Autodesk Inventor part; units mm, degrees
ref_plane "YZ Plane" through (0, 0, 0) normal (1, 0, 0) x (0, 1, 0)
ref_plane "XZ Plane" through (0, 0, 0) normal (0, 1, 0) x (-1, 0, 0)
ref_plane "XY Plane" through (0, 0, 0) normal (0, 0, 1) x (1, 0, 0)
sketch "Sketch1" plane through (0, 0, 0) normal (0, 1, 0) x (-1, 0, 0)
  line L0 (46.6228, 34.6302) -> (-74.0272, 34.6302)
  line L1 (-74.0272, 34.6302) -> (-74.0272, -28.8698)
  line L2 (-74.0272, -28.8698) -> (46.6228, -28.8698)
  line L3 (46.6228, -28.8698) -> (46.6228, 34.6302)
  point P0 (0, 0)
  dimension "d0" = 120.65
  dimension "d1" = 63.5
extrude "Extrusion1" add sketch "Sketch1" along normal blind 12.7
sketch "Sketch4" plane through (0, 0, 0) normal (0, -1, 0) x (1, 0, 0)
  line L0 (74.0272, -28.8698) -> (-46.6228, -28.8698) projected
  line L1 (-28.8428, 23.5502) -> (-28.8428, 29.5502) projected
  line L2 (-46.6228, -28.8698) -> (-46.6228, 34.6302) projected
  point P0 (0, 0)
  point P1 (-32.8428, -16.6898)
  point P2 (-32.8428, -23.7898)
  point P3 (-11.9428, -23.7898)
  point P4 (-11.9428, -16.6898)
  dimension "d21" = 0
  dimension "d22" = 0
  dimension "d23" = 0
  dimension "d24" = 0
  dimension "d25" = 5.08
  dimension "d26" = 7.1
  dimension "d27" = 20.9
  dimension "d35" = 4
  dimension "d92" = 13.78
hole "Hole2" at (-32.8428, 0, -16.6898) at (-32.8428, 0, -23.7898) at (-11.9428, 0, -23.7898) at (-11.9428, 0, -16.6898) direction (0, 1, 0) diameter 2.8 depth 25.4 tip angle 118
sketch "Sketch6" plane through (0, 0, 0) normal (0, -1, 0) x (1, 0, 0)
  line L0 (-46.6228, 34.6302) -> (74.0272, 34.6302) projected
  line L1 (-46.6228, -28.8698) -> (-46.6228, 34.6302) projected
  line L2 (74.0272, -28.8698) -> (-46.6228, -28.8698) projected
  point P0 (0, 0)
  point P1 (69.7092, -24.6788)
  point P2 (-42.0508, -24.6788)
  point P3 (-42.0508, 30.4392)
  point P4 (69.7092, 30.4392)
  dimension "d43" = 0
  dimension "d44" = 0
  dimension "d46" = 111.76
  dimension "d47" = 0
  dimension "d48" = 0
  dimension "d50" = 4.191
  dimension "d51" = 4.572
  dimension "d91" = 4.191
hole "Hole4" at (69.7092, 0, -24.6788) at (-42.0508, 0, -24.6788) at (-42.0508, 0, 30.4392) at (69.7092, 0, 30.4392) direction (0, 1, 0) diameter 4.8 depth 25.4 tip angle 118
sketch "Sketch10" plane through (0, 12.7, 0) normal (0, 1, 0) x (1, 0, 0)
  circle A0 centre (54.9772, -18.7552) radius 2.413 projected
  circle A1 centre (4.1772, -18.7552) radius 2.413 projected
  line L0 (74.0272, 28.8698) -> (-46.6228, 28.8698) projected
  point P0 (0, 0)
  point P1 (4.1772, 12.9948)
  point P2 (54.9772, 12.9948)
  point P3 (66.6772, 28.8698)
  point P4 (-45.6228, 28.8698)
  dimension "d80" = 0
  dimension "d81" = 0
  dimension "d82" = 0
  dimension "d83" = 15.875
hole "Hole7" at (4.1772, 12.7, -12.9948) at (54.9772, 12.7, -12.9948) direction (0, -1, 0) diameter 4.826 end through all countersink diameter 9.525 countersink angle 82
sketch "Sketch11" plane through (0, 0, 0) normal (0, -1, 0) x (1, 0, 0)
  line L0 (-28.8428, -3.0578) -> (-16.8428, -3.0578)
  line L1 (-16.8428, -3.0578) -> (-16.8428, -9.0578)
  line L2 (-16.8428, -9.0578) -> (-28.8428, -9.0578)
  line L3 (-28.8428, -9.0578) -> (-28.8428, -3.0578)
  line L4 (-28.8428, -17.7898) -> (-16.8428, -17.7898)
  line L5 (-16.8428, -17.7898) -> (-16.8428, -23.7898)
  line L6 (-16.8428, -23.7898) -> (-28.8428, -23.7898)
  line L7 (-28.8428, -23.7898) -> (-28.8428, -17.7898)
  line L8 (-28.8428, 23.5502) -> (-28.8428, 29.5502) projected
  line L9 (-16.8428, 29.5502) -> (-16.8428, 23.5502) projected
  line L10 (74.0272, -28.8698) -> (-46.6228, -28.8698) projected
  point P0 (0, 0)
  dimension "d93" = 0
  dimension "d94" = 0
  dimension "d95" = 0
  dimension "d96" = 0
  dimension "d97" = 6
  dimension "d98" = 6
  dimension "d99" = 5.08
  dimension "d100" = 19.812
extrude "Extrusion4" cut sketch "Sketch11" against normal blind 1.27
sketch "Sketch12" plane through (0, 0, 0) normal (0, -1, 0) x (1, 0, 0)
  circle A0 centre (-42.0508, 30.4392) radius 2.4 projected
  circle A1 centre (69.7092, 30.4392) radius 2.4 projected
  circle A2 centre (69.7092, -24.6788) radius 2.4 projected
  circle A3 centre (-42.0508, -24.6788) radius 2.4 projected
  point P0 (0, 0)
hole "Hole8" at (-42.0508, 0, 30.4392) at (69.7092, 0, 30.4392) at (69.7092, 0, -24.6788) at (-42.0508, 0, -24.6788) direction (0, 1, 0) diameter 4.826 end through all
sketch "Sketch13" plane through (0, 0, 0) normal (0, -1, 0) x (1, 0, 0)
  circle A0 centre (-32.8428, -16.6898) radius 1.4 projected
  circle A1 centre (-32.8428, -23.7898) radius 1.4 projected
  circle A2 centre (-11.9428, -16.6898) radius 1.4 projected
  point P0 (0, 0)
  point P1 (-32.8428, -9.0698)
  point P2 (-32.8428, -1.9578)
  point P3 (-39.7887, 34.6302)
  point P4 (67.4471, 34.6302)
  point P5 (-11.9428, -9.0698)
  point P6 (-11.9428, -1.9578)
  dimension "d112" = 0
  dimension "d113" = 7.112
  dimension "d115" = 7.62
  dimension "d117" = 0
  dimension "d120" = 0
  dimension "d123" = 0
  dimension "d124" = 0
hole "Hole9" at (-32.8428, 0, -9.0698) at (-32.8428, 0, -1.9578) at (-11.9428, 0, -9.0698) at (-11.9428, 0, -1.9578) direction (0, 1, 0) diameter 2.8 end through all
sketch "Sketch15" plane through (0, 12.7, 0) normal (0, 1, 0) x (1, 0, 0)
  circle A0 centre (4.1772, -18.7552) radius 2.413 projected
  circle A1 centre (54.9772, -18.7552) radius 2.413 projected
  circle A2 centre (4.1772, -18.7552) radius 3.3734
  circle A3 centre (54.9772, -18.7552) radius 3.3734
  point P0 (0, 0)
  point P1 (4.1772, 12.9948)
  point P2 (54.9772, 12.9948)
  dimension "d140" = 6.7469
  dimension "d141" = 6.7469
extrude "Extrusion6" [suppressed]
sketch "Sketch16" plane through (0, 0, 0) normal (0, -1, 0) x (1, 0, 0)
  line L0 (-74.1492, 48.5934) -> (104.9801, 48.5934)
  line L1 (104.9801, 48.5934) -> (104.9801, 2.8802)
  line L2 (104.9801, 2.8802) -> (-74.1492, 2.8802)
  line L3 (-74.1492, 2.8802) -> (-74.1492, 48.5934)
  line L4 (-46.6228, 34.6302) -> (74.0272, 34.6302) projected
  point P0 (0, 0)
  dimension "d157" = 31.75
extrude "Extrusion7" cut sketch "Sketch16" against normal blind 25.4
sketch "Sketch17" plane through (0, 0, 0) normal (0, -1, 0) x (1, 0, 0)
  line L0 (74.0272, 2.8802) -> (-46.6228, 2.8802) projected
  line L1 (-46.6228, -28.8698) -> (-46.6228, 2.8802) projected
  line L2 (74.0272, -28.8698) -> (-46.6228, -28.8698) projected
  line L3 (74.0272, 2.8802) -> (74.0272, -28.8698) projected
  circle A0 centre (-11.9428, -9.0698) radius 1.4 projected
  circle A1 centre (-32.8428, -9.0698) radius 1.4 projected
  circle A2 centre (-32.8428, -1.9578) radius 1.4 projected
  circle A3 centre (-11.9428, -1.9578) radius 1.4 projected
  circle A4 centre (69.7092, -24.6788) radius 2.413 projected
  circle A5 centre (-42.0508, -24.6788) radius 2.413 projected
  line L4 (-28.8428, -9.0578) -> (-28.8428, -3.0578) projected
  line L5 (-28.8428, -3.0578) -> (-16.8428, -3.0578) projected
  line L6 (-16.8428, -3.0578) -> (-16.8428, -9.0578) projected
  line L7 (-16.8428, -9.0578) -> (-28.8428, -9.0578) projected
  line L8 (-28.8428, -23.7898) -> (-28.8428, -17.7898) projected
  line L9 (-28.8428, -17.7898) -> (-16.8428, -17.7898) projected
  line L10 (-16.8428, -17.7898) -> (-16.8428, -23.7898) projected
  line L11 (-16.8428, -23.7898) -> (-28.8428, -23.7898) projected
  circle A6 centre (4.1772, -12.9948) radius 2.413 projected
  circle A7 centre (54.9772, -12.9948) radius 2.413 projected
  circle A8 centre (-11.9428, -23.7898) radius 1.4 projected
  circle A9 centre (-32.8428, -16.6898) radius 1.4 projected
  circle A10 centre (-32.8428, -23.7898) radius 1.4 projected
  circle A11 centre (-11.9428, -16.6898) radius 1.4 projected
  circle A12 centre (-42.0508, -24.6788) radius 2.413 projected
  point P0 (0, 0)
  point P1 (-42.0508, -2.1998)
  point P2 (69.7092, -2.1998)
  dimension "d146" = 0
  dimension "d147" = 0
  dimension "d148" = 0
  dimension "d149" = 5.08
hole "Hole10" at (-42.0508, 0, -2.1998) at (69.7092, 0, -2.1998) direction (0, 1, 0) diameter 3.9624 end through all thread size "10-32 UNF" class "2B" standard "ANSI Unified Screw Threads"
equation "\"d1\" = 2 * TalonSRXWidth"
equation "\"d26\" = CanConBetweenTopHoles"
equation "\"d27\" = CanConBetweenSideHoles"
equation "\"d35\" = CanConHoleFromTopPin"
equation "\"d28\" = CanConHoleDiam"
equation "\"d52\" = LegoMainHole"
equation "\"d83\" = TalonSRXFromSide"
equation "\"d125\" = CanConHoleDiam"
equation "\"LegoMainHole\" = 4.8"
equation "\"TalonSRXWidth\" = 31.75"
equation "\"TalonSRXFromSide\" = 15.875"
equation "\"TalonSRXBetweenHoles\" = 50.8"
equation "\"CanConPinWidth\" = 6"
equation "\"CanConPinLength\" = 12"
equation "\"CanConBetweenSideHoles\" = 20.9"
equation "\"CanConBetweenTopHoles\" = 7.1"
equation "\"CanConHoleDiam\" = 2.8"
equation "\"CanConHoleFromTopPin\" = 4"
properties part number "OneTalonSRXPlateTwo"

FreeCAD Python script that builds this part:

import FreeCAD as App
import Part
import Sketcher

V = App.Vector
Q = App.Units.Quantity


def add_polygon(sketch, points):
    """Adds a closed chain of lines whose ends are joined by coincident constraints."""
    first, n = sketch.GeometryCount, len(points)
    for a, b in zip(points, points[1:] + points[:1]):
        sketch.addGeometry(Part.LineSegment(App.Vector(*a, 0), App.Vector(*b, 0)), False)
    for i in range(n):
        sketch.addConstraint(Sketcher.Constraint("Coincident", first + i, 2, first + (i + 1) % n, 1))

doc = App.newDocument("Part")
body = doc.addObject("PartDesign::Body", "Body")

sketch1 = doc.addObject("Sketcher::SketchObject", "Sketch")
body.addObject(sketch1)
sketch1.AttachmentSupport = (doc.XZ_Plane, [""])
sketch1.MapMode = "FlatFace"
add_polygon(sketch1, [(-47, -29), (-47, 35), (74, 35), (74, -29)])
sketch1.addConstraint([
    Sketcher.Constraint("Vertical", 0),
    Sketcher.Constraint("Horizontal", 1),
    Sketcher.Constraint("Vertical", 2),
    Sketcher.Constraint("Horizontal", 3),
    Sketcher.Constraint("DistanceY", 0, 1, 0, 2, Q("2.5 in")),
    Sketcher.Constraint("DistanceX", 1, 1, 1, 2, Q("4.75 in")),
    Sketcher.Constraint("DistanceY", -1, 1, 0, 2, Q("1.3634 in")),
    Sketcher.Constraint("DistanceX", 0, 2, -1, 1, Q("46.6228 mm")),
])
pad1 = doc.addObject("PartDesign::Pad", "Pad")
body.addObject(pad1)
pad1.Profile = sketch1
pad1.Length = Q("0.5 in")
pad1.Reversed = True

sketch2 = doc.addObject("Sketcher::SketchObject", "Sketch001")
body.addObject(sketch2)
sketch2.AttachmentSupport = (doc.XZ_Plane, [""])
sketch2.MapMode = "FlatFace"
sketch2.addGeometry([
    Part.Circle(V(-32.8, -16.7, 0), V(0, 0, 1), 1.4),
    Part.Circle(V(-32.8, -23.8, 0), V(0, 0, 1), 1.4),
    Part.Circle(V(-11.9, -23.8, 0), V(0, 0, 1), 1.4),
    Part.Circle(V(-11.9, -16.7, 0), V(0, 0, 1), 1.4),
], False)
sketch2.addConstraint([
    Sketcher.Constraint("Equal", 0, 1),
    Sketcher.Constraint("Equal", 1, 2),
    Sketcher.Constraint("Equal", 2, 3),
    Sketcher.Constraint("Horizontal", 1, 3, 2, 3),
    Sketcher.Constraint("Horizontal", 0, 3, 3, 3),
    Sketcher.Constraint("Vertical", 0, 3, 1, 3),
    Sketcher.Constraint("Vertical", 2, 3, 3, 3),
    Sketcher.Constraint("Diameter", 0, Q("2.8 mm")),
    Sketcher.Constraint("DistanceY", 1, 3, -1, 1, Q("0.9366 in")),
    Sketcher.Constraint("DistanceX", 2, 3, -1, 1, Q("0.4702 in")),
    Sketcher.Constraint("DistanceX", 0, 3, -1, 1, Q("32.8428 mm")),
    Sketcher.Constraint("DistanceY", 0, 3, -1, 1, Q("16.6898 mm")),
])
doc.recompute()
hole = doc.addObject("PartDesign::Hole", "Hole")
body.addObject(hole)
hole.Profile = sketch2
hole.ThreadType = "None"
hole.Diameter = 2.8
hole.DepthType = "Dimension"
hole.Depth = Q("1 in")
hole.DrillPoint = "Angled"
hole.DrillPointAngle = 118

sketch3 = doc.addObject("Sketcher::SketchObject", "Sketch002")
body.addObject(sketch3)
sketch3.AttachmentSupport = (doc.XZ_Plane, [""])
sketch3.MapMode = "FlatFace"
sketch3.addGeometry([
    Part.Circle(V(69.7, -24.7, 0), V(0, 0, 1), 2.4),
    Part.Circle(V(-42.1, -24.7, 0), V(0, 0, 1), 2.4),
    Part.Circle(V(-42.1, 30.4, 0), V(0, 0, 1), 2.4),
    Part.Circle(V(69.7, 30.4, 0), V(0, 0, 1), 2.4),
], False)
sketch3.addConstraint([
    Sketcher.Constraint("Equal", 0, 1),
    Sketcher.Constraint("Equal", 1, 2),
    Sketcher.Constraint("Equal", 2, 3),
    Sketcher.Constraint("Horizontal", 0, 3, 1, 3),
    Sketcher.Constraint("Horizontal", 2, 3, 3, 3),
    Sketcher.Constraint("Vertical", 1, 3, 2, 3),
    Sketcher.Constraint("Vertical", 0, 3, 3, 3),
    Sketcher.Constraint("DistanceX", 1, 3, 0, 3, Q("4.4 in")),
    Sketcher.Constraint("Diameter", 0, Q("4.8 mm")),
    Sketcher.Constraint("DistanceY", 1, 3, 2, 3, Q("2.17 in")),
    Sketcher.Constraint("DistanceY", 0, 3, -1, 1, Q("0.9716 in")),
    Sketcher.Constraint("DistanceX", -1, 1, 0, 3, Q("69.7092 mm")),
])
doc.recompute()
hole2 = doc.addObject("PartDesign::Hole", "Hole001")
body.addObject(hole2)
hole2.Profile = sketch3
hole2.ThreadType = "None"
hole2.Diameter = 4.8
hole2.DepthType = "Dimension"
hole2.Depth = Q("1 in")
hole2.DrillPoint = "Angled"
hole2.DrillPointAngle = 118

sketch4 = doc.addObject("Sketcher::SketchObject", "Sketch003")
body.addObject(sketch4)
sketch4.AttachmentSupport = (doc.XZ_Plane, [""])
sketch4.MapMode = "FlatFace"
sketch4.AttachmentOffset = App.Placement(V(0, 0, -0.5 * 25.4), App.Rotation())
sketch4.addGeometry([
    Part.Circle(V(4.2, -13, 0), V(0, 0, 1), 2.4),
    Part.Circle(V(55, -13, 0), V(0, 0, 1), 2.4),
], False)
sketch4.addConstraint([
    Sketcher.Constraint("Equal", 0, 1),
    Sketcher.Constraint("Horizontal", 0, 3, 1, 3),
    Sketcher.Constraint("Diameter", 0, Q("0.19 in")),
    Sketcher.Constraint("DistanceX", 0, 3, 1, 3, Q("2 in")),
    Sketcher.Constraint("DistanceY", 0, 3, -1, 1, Q("0.5116 in")),
    Sketcher.Constraint("DistanceX", -1, 1, 0, 3, Q("4.1772 mm")),
])
doc.recompute()
hole3 = doc.addObject("PartDesign::Hole", "Hole002")
body.addObject(hole3)
hole3.Profile = sketch4
hole3.ThreadType = "None"
hole3.Diameter = Q("0.19 in")
hole3.DepthType = "ThroughAll"
hole3.HoleCutType = "Countersink"
hole3.HoleCutDiameter = Q("0.375 in")
hole3.HoleCutCountersinkAngle = 82
hole3.Reversed = True

sketch5 = doc.addObject("Sketcher::SketchObject", "Sketch004")
body.addObject(sketch5)
sketch5.AttachmentSupport = (doc.XZ_Plane, [""])
sketch5.MapMode = "FlatFace"
add_polygon(sketch5, [(-17, -3), (-29, -3), (-29, -9), (-17, -9)])
add_polygon(sketch5, [(-17, -18), (-29, -18), (-29, -24), (-17, -24)])
sketch5.addConstraint([
    Sketcher.Constraint("Horizontal", 0),
    Sketcher.Constraint("Vertical", 1),
    Sketcher.Constraint("Horizontal", 2),
    Sketcher.Constraint("Vertical", 3),
    Sketcher.Constraint("Horizontal", 4),
    Sketcher.Constraint("Vertical", 5),
    Sketcher.Constraint("Horizontal", 6),
    Sketcher.Constraint("Vertical", 7),
    Sketcher.Constraint("Vertical", 1, 2, 4, 2),
    Sketcher.Constraint("Vertical", 3, 2, 6, 2),
    Sketcher.Constraint("Equal", 3, 5),
    Sketcher.Constraint("DistanceY", 1, 2, 1, 1, Q("6 mm")),
    Sketcher.Constraint("DistanceY", 4, 2, 0, 2, Q("0.58 in")),
    Sketcher.Constraint("DistanceX", 0, 2, 0, 1, Q("12 mm")),
    Sketcher.Constraint("DistanceY", 1, 2, -1, 1, Q("0.3566 in")),
    Sketcher.Constraint("DistanceX", 2, 2, -1, 1, Q("0.6631 in")),
])
pocket1 = doc.addObject("PartDesign::Pocket", "Pocket")
body.addObject(pocket1)
pocket1.Profile = sketch5
pocket1.Length = Q("0.05 in")

sketch6 = doc.addObject("Sketcher::SketchObject", "Sketch005")
body.addObject(sketch6)
sketch6.AttachmentSupport = (doc.XZ_Plane, [""])
sketch6.MapMode = "FlatFace"
sketch6.addGeometry([
    Part.Circle(V(-42.1, 30.4, 0), V(0, 0, 1), 2.4),
    Part.Circle(V(69.7, 30.4, 0), V(0, 0, 1), 2.4),
    Part.Circle(V(69.7, -24.7, 0), V(0, 0, 1), 2.4),
    Part.Circle(V(-42.1, -24.7, 0), V(0, 0, 1), 2.4),
], False)
sketch6.addConstraint([
    Sketcher.Constraint("Equal", 0, 1),
    Sketcher.Constraint("Equal", 1, 2),
    Sketcher.Constraint("Equal", 2, 3),
    Sketcher.Constraint("Horizontal", 0, 3, 1, 3),
    Sketcher.Constraint("Horizontal", 2, 3, 3, 3),
    Sketcher.Constraint("Vertical", 1, 3, 2, 3),
    Sketcher.Constraint("Vertical", 0, 3, 3, 3),
    Sketcher.Constraint("Diameter", 0, Q("0.19 in")),
    Sketcher.Constraint("DistanceX", 0, 3, 1, 3, Q("4.4 in")),
    Sketcher.Constraint("DistanceY", 2, 3, 1, 3, Q("2.17 in")),
    Sketcher.Constraint("DistanceY", -1, 1, 0, 3, Q("1.1984 in")),
    Sketcher.Constraint("DistanceX", 0, 3, -1, 1, Q("42.0508 mm")),
])
doc.recompute()
hole4 = doc.addObject("PartDesign::Hole", "Hole003")
body.addObject(hole4)
hole4.Profile = sketch6
hole4.ThreadType = "None"
hole4.Diameter = Q("0.19 in")
hole4.DepthType = "ThroughAll"

sketch7 = doc.addObject("Sketcher::SketchObject", "Sketch006")
body.addObject(sketch7)
sketch7.AttachmentSupport = (doc.XZ_Plane, [""])
sketch7.MapMode = "FlatFace"
sketch7.addGeometry([
    Part.Circle(V(-32.8, -9.1, 0), V(0, 0, 1), 1.4),
    Part.Circle(V(-32.8, -2, 0), V(0, 0, 1), 1.4),
    Part.Circle(V(-11.9, -9.1, 0), V(0, 0, 1), 1.4),
    Part.Circle(V(-11.9, -2, 0), V(0, 0, 1), 1.4),
], False)
sketch7.addConstraint([
    Sketcher.Constraint("Equal", 0, 1),
    Sketcher.Constraint("Equal", 1, 2),
    Sketcher.Constraint("Equal", 2, 3),
    Sketcher.Constraint("Horizontal", 0, 3, 2, 3),
    Sketcher.Constraint("Horizontal", 1, 3, 3, 3),
    Sketcher.Constraint("Vertical", 0, 3, 1, 3),
    Sketcher.Constraint("Vertical", 2, 3, 3, 3),
    Sketcher.Constraint("Diameter", 0, Q("2.8 mm")),
    Sketcher.Constraint("DistanceY", 0, 3, 1, 3, Q("0.28 in")),
    Sketcher.Constraint("DistanceX", 2, 3, -1, 1, Q("0.4702 in")),
    Sketcher.Constraint("DistanceX", 0, 3, -1, 1, Q("32.8428 mm")),
    Sketcher.Constraint("DistanceY", 0, 3, -1, 1, Q("9.0698 mm")),
])
doc.recompute()
hole5 = doc.addObject("PartDesign::Hole", "Hole004")
body.addObject(hole5)
hole5.Profile = sketch7
hole5.ThreadType = "None"
hole5.Diameter = 2.8
hole5.DepthType = "ThroughAll"

sketch8 = doc.addObject("Sketcher::SketchObject", "Sketch007")
body.addObject(sketch8)
sketch8.AttachmentSupport = (doc.XZ_Plane, [""])
sketch8.MapMode = "FlatFace"
add_polygon(sketch8, [(105, 49), (-74, 49), (-74, 3), (105, 3)])
sketch8.addConstraint([
    Sketcher.Constraint("Horizontal", 0),
    Sketcher.Constraint("Vertical", 1),
    Sketcher.Constraint("Horizontal", 2),
    Sketcher.Constraint("Vertical", 3),
    Sketcher.Constraint("DistanceX", 0, 2, 0, 1, Q("179.1293 mm")),
    Sketcher.Constraint("DistanceY", 1, 2, 1, 1, Q("45.7132 mm")),
    Sketcher.Constraint("DistanceY", -1, 1, 1, 2, Q("0.1134 in")),
    Sketcher.Constraint("DistanceX", 0, 2, -1, 1, Q("74.1492 mm")),
])
pocket2 = doc.addObject("PartDesign::Pocket", "Pocket001")
body.addObject(pocket2)
pocket2.Profile = sketch8
pocket2.Length = Q("1 in")

sketch9 = doc.addObject("Sketcher::SketchObject", "Sketch008")
body.addObject(sketch9)
sketch9.AttachmentSupport = (doc.XZ_Plane, [""])
sketch9.MapMode = "FlatFace"
sketch9.addGeometry([
    Part.Circle(V(-42.1, -2.2, 0), V(0, 0, 1), 2),
    Part.Circle(V(69.7, -2.2, 0), V(0, 0, 1), 2),
], False)
sketch9.addConstraint([
    Sketcher.Constraint("Equal", 0, 1),
    Sketcher.Constraint("Horizontal", 0, 3, 1, 3),
    Sketcher.Constraint("Diameter", 0, Q("0.156 in")),
    Sketcher.Constraint("DistanceX", 0, 3, 1, 3, Q("4.4 in")),
    Sketcher.Constraint("DistanceY", 0, 3, -1, 1, Q("0.0866 in")),
    Sketcher.Constraint("DistanceX", 0, 3, -1, 1, Q("42.0508 mm")),
])
doc.recompute()
hole6 = doc.addObject("PartDesign::Hole", "Hole005")
body.addObject(hole6)
hole6.Profile = sketch9
hole6.ThreadType = "None"
hole6.Diameter = Q("0.156 in")
hole6.DepthType = "ThroughAll"

doc.recompute()
